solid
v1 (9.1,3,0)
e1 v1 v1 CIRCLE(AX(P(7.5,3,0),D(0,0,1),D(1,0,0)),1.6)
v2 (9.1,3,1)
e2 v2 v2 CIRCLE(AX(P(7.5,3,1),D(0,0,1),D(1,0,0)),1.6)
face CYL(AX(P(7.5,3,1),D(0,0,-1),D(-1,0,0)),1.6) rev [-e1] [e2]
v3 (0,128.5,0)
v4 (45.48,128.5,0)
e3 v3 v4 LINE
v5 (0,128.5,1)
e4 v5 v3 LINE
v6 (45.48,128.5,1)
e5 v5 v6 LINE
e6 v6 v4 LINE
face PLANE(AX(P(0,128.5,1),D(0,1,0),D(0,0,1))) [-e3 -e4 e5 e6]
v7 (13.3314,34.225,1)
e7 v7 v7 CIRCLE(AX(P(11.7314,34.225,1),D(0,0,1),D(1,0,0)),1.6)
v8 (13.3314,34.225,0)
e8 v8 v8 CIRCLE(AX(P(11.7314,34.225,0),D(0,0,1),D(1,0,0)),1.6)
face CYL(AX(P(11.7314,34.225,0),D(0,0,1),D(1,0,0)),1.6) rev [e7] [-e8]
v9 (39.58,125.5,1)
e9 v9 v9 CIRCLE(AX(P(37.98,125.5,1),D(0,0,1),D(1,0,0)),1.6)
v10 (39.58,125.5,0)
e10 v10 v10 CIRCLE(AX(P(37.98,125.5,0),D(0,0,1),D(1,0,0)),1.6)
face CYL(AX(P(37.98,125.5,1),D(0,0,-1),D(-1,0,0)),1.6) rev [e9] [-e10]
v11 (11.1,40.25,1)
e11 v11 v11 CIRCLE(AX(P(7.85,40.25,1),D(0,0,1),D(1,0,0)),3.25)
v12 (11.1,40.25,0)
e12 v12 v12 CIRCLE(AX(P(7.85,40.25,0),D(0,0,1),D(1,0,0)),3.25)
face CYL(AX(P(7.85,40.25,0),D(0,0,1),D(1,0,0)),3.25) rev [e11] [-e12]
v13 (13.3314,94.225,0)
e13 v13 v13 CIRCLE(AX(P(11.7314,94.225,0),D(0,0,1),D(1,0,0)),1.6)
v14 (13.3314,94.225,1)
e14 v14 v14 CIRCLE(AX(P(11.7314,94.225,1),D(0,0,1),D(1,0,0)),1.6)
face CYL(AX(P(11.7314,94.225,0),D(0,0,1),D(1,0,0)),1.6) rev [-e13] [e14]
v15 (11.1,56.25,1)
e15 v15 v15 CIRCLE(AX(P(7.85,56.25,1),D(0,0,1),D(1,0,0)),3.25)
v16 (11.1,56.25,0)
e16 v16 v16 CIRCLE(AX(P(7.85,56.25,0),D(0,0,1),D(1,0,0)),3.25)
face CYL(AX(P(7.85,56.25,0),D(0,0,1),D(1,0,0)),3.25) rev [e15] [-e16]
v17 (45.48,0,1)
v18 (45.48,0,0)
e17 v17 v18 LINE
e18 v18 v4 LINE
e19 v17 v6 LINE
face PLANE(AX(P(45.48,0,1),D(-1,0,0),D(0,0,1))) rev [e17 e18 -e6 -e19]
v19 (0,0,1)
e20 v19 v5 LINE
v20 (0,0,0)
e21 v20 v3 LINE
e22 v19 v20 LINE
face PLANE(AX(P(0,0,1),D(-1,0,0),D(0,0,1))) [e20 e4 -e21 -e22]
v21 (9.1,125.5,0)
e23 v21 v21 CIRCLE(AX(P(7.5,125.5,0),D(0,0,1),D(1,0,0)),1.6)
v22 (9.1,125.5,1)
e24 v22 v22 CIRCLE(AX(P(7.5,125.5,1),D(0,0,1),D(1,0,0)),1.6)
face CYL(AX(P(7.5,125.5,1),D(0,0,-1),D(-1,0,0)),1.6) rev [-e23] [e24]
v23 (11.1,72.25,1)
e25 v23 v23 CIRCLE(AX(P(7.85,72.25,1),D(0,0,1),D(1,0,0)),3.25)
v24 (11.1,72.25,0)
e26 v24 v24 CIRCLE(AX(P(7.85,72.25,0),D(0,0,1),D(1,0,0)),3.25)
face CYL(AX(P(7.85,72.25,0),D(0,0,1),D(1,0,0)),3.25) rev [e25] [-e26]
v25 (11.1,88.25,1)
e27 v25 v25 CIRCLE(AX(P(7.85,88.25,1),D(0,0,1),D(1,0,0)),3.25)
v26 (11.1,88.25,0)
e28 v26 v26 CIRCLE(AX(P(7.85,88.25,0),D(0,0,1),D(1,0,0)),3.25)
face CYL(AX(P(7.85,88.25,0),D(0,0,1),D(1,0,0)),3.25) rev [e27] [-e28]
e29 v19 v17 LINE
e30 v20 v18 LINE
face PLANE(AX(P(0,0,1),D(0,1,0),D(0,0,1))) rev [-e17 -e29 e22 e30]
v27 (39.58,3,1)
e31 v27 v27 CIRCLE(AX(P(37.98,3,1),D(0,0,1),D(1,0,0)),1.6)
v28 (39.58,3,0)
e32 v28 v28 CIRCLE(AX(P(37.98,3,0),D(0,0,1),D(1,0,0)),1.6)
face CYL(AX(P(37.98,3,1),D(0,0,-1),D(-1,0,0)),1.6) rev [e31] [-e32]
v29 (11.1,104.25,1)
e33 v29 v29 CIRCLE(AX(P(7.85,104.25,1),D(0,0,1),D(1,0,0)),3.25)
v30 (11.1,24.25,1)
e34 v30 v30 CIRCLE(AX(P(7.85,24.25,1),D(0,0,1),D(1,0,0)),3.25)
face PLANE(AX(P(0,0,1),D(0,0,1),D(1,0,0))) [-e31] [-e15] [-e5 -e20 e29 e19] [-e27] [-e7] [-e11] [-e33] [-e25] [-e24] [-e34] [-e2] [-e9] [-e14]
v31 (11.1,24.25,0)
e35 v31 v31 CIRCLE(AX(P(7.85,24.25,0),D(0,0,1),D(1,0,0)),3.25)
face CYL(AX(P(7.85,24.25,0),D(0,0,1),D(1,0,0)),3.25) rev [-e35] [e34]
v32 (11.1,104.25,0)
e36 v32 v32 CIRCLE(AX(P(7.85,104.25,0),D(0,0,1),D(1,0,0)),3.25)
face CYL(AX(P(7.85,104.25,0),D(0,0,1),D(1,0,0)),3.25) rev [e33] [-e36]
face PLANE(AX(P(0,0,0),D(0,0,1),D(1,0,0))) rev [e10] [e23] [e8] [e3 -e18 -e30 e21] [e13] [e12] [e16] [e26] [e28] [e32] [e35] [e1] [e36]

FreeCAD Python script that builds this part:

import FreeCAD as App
import Part
import Sketcher

V = App.Vector

doc = App.newDocument("Part")
body = doc.addObject("PartDesign::Body", "Body")

# Sketch on XY plane
sketch1 = doc.addObject("Sketcher::SketchObject", "Sketch")
body.addObject(sketch1)
sketch1.AttachmentSupport = (doc.XY_Plane, [""])
sketch1.MapMode = "FlatFace"
sketch1.addGeometry(Part.LineSegment(V(0, 128.5, 0), V(0, 0, 0)), False)
sketch1.addGeometry(Part.LineSegment(V(0, 0, 0), V(45.5, 0, 0)), False)
sketch1.addGeometry(Part.LineSegment(V(45.5, 0, 0), V(45.5, 128.5, 0)), False)
sketch1.addGeometry(Part.LineSegment(V(45.5, 128.5, 0), V(0, 128.5, 0)), False)
sketch1.addGeometry(Part.Circle(V(7.5, 3, 0), V(0, 0, 1), 1.6), False)
sketch1.addGeometry(Part.Circle(V(38, 3, 0), V(0, 0, 1), 1.6), False)
sketch1.addGeometry(Part.Circle(V(7.5, 125.5, 0), V(0, 0, 1), 1.6), False)
sketch1.addGeometry(Part.Circle(V(38, 125.5, 0), V(0, 0, 1), 1.6), False)
sketch1.addConstraint(Sketcher.Constraint("Coincident", 0, 2, 1, 1))
sketch1.addConstraint(Sketcher.Constraint("Coincident", 1, 2, 2, 1))
sketch1.addConstraint(Sketcher.Constraint("Coincident", 2, 2, 3, 1))
sketch1.addConstraint(Sketcher.Constraint("Coincident", 3, 2, 0, 1))
sketch1.addConstraint(Sketcher.Constraint("Vertical", 0))
sketch1.addConstraint(Sketcher.Constraint("Horizontal", 1))
sketch1.addConstraint(Sketcher.Constraint("Vertical", 2))
sketch1.addConstraint(Sketcher.Constraint("Horizontal", 3))
sketch1.addConstraint(Sketcher.Constraint("Coincident", 0, 2, -1, 1))
sketch1.addConstraint(Sketcher.Constraint("Equal", 4, 5))
sketch1.addConstraint(Sketcher.Constraint("Equal", 5, 6))
sketch1.addConstraint(Sketcher.Constraint("Equal", 6, 7))
sketch1.addConstraint(Sketcher.Constraint("Horizontal", 4, 3, 5, 3))
sketch1.addConstraint(Sketcher.Constraint("Horizontal", 6, 3, 7, 3))
sketch1.addConstraint(Sketcher.Constraint("Vertical", 4, 3, 6, 3))
sketch1.addConstraint(Sketcher.Constraint("Vertical", 5, 3, 7, 3))
sketch1.addConstraint(Sketcher.Constraint("Diameter", 4, 3.2))
sketch1.addConstraint(Sketcher.Constraint("DistanceY", 0, 2, 0, 1, 128.5))
sketch1.addConstraint(Sketcher.Constraint("DistanceY", -1, 1, 4, 3, 3.0))
sketch1.addConstraint(Sketcher.Constraint("DistanceY", 7, 3, 2, 2, 3.0))
sketch1.addConstraint(Sketcher.Constraint("DistanceX", 1, 1, 1, 2, 45.48))
sketch1.addConstraint(Sketcher.Constraint("DistanceX", -1, 1, 4, 3, 7.5))
sketch1.addConstraint(Sketcher.Constraint("DistanceX", 5, 3, 1, 2, 7.5))
pad1 = doc.addObject("PartDesign::Pad", "Pad")
body.addObject(pad1)
pad1.Profile = sketch1
pad1.Length = 1

# Sketch on XY plane
sketch2 = doc.addObject("Sketcher::SketchObject", "Sketch001")
body.addObject(sketch2)
sketch2.AttachmentSupport = (doc.XY_Plane, [""])
sketch2.MapMode = "FlatFace"
sketch2.AttachmentOffset = App.Placement(V(0, 0, 1), App.Rotation())
sketch2.addGeometry(Part.Circle(V(7.8, 104.2, 0), V(0, 0, 1), 3.2), False)
sketch2.addGeometry(Part.Circle(V(7.8, 88.2, 0), V(0, 0, 1), 3.2), False)
sketch2.addGeometry(Part.Circle(V(7.8, 72.2, 0), V(0, 0, 1), 3.2), False)
sketch2.addGeometry(Part.Circle(V(7.8, 56.2, 0), V(0, 0, 1), 3.2), False)
sketch2.addGeometry(Part.Circle(V(7.8, 40.2, 0), V(0, 0, 1), 3.2), False)
sketch2.addGeometry(Part.Circle(V(7.8, 24.2, 0), V(0, 0, 1), 3.2), False)
sketch2.addConstraint(Sketcher.Constraint("Equal", 0, 1))
sketch2.addConstraint(Sketcher.Constraint("Equal", 1, 2))
sketch2.addConstraint(Sketcher.Constraint("Equal", 2, 3))
sketch2.addConstraint(Sketcher.Constraint("Equal", 3, 4))
sketch2.addConstraint(Sketcher.Constraint("Equal", 4, 5))
sketch2.addConstraint(Sketcher.Constraint("Vertical", 0, 3, 1, 3))
sketch2.addConstraint(Sketcher.Constraint("Vertical", 1, 3, 2, 3))
sketch2.addConstraint(Sketcher.Constraint("Vertical", 2, 3, 3, 3))
sketch2.addConstraint(Sketcher.Constraint("Vertical", 3, 3, 4, 3))
sketch2.addConstraint(Sketcher.Constraint("Vertical", 4, 3, 5, 3))
sketch2.addConstraint(Sketcher.Constraint("Diameter", 0, 6.5))
sketch2.addConstraint(Sketcher.Constraint("DistanceY", 1, 3, 0, 3, 16.0))
sketch2.addConstraint(Sketcher.Constraint("DistanceY", 2, 3, 1, 3, 16.0))
sketch2.addConstraint(Sketcher.Constraint("DistanceY", 3, 3, 2, 3, 16.0))
sketch2.addConstraint(Sketcher.Constraint("DistanceY", 4, 3, 3, 3, 16.0))
sketch2.addConstraint(Sketcher.Constraint("DistanceY", 5, 3, 4, 3, 16.0))
sketch2.addConstraint(Sketcher.Constraint("DistanceX", -1, 1, 0, 3, 7.85))
sketch2.addConstraint(Sketcher.Constraint("DistanceY", -1, 1, 0, 3, 104.25))
pocket1 = doc.addObject("PartDesign::Pocket", "Pocket")
body.addObject(pocket1)
pocket1.Profile = sketch2
pocket1.Type = "ThroughAll"
pocket1.Midplane = True

# Sketch on XY plane
sketch3 = doc.addObject("Sketcher::SketchObject", "Sketch002")
body.addObject(sketch3)
sketch3.AttachmentSupport = (doc.XY_Plane, [""])
sketch3.MapMode = "FlatFace"
sketch3.AttachmentOffset = App.Placement(V(0, 0, 1), App.Rotation())
sketch3.addGeometry(Part.Circle(V(11.7, 94.2, 0), V(0, 0, 1), 1.6), False)
sketch3.addGeometry(Part.Circle(V(11.7, 34.2, 0), V(0, 0, 1), 1.6), False)
sketch3.addConstraint(Sketcher.Constraint("Equal", 0, 1))
sketch3.addConstraint(Sketcher.Constraint("Vertical", 0, 3, 1, 3))
sketch3.addConstraint(Sketcher.Constraint("Diameter", 0, 3.2))
sketch3.addConstraint(Sketcher.Constraint("DistanceY", 1, 3, 0, 3, 60.0))
sketch3.addConstraint(Sketcher.Constraint("DistanceY", -1, 1, 0, 3, 94.225))
sketch3.addConstraint(Sketcher.Constraint("DistanceX", -1, 1, 0, 3, 11.7314))
pocket2 = doc.addObject("PartDesign::Pocket", "Pocket001")
body.addObject(pocket2)
pocket2.Profile = sketch3
pocket2.Type = "ThroughAll"
pocket2.Midplane = True

doc.recompute()
